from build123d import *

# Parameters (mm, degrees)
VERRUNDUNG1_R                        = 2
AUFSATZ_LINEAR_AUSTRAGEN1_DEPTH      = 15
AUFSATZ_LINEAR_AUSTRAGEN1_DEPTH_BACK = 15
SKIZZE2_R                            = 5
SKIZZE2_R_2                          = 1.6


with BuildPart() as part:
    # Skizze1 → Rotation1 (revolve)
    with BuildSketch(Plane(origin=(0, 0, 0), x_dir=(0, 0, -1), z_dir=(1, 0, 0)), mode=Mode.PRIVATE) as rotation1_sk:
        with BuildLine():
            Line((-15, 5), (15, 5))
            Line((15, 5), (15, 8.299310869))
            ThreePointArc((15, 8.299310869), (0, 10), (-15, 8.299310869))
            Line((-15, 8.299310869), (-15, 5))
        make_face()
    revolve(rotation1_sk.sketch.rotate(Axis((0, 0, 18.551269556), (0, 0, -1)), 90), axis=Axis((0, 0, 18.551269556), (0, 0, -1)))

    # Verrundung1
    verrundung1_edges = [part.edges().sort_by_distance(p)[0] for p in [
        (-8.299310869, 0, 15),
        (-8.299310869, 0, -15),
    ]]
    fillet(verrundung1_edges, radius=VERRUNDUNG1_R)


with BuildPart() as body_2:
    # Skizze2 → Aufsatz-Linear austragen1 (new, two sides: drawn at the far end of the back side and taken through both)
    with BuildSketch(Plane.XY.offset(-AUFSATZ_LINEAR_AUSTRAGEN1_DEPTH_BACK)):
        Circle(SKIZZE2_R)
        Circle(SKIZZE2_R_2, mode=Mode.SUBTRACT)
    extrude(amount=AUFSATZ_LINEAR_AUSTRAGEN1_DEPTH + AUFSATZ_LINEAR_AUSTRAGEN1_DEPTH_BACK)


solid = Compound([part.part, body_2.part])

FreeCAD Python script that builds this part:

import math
import FreeCAD as App
import Part
import Sketcher


def edges_at(feature, points):
    """Names of the edges that pass closest to the given points."""
    edges = feature.Shape.Edges
    near = lambda p: min(range(len(edges)), key=lambda i: edges[i].distToShape(Part.Vertex(*p))[0])
    return sorted({f"Edge{near(p) + 1}" for p in points})

doc = App.newDocument("Part")
body = doc.addObject("PartDesign::Body", "Body")

# Sketch on YZ plane
sketch1 = body.newObject("Sketcher::SketchObject", "Sketch")
sketch1.AttachmentSupport = (doc.getObject("YZ_Plane"), [""])
sketch1.MapMode = "FlatFace"
sketch1.addGeometry(Part.LineSegment(App.Vector(5, 15, 0), App.Vector(5, -15, 0)), False)
sketch1.addGeometry(Part.LineSegment(App.Vector(5, -15, 0), App.Vector(8.3, -15, 0)), False)
sketch1.addGeometry(Part.ArcOfCircle(Part.Circle(App.Vector(-57, 0, 0), App.Vector(0, 0, 1), 67), math.radians(-13), math.radians(13)), False)
sketch1.addGeometry(Part.LineSegment(App.Vector(8.3, 15, 0), App.Vector(5, 15, 0)), False)
sketch1.addConstraint(Sketcher.Constraint("Coincident", 0, 2, 1, 1))
sketch1.addConstraint(Sketcher.Constraint("Coincident", 1, 2, 2, 1))
sketch1.addConstraint(Sketcher.Constraint("Coincident", 2, 2, 3, 1))
sketch1.addConstraint(Sketcher.Constraint("Coincident", 3, 2, 0, 1))
sketch1.addConstraint(Sketcher.Constraint("Vertical", 0))
sketch1.addConstraint(Sketcher.Constraint("Horizontal", 1))
sketch1.addConstraint(Sketcher.Constraint("Horizontal", 3))
sketch1.addConstraint(Sketcher.Constraint("Symmetric", 1, 2, 2, 2, -1))
sketch1.addConstraint(Sketcher.Constraint("Radius", 2, 67.0))
sketch1.addConstraint(Sketcher.Constraint("DistanceY", 0, 2, 0, 1, 30.0))
sketch1.addConstraint(Sketcher.Constraint("DistanceX", 2, 3, -1, 1, 57.0))
sketch1.addConstraint(Sketcher.Constraint("DistanceX", -1, 1, 0, 2, 5.0))
revolution = body.newObject("PartDesign::Revolution", "Revolution")
revolution.Profile = sketch1
revolution.ReferenceAxis = (sketch1, ["V_Axis"])
revolution.Angle = 360
doc.recompute()

fillet = body.newObject("PartDesign::Fillet", "Fillet")
fillet.Base = (revolution, edges_at(revolution, [(-8.299, 0, 15), (-8.299, 0, -15)]))
fillet.Radius = 2
body2 = doc.addObject("PartDesign::Body", "Body001")

# Sketch on XY plane
sketch2 = body2.newObject("Sketcher::SketchObject", "Sketch001")
sketch2.AttachmentSupport = (doc.getObject("XY_Plane001"), [""])
sketch2.MapMode = "FlatFace"
sketch2.addGeometry(Part.Circle(App.Vector(0, 0, 0), App.Vector(0, 0, 1), 5), False)
sketch2.addGeometry(Part.Circle(App.Vector(0, 0, 0), App.Vector(0, 0, 1), 1.6), False)
sketch2.addConstraint(Sketcher.Constraint("Coincident", 0, 3, -1, 1))
sketch2.addConstraint(Sketcher.Constraint("Coincident", 1, 3, -1, 1))
sketch2.addConstraint(Sketcher.Constraint("Diameter", 0, 10.0))
sketch2.addConstraint(Sketcher.Constraint("Diameter", 1, 3.2))
pad1 = body2.newObject("PartDesign::Pad", "Pad")
pad1.Profile = sketch2
pad1.Type = "TwoLengths"
pad1.Length = 15
pad1.Length2 = 15

doc.recompute()
